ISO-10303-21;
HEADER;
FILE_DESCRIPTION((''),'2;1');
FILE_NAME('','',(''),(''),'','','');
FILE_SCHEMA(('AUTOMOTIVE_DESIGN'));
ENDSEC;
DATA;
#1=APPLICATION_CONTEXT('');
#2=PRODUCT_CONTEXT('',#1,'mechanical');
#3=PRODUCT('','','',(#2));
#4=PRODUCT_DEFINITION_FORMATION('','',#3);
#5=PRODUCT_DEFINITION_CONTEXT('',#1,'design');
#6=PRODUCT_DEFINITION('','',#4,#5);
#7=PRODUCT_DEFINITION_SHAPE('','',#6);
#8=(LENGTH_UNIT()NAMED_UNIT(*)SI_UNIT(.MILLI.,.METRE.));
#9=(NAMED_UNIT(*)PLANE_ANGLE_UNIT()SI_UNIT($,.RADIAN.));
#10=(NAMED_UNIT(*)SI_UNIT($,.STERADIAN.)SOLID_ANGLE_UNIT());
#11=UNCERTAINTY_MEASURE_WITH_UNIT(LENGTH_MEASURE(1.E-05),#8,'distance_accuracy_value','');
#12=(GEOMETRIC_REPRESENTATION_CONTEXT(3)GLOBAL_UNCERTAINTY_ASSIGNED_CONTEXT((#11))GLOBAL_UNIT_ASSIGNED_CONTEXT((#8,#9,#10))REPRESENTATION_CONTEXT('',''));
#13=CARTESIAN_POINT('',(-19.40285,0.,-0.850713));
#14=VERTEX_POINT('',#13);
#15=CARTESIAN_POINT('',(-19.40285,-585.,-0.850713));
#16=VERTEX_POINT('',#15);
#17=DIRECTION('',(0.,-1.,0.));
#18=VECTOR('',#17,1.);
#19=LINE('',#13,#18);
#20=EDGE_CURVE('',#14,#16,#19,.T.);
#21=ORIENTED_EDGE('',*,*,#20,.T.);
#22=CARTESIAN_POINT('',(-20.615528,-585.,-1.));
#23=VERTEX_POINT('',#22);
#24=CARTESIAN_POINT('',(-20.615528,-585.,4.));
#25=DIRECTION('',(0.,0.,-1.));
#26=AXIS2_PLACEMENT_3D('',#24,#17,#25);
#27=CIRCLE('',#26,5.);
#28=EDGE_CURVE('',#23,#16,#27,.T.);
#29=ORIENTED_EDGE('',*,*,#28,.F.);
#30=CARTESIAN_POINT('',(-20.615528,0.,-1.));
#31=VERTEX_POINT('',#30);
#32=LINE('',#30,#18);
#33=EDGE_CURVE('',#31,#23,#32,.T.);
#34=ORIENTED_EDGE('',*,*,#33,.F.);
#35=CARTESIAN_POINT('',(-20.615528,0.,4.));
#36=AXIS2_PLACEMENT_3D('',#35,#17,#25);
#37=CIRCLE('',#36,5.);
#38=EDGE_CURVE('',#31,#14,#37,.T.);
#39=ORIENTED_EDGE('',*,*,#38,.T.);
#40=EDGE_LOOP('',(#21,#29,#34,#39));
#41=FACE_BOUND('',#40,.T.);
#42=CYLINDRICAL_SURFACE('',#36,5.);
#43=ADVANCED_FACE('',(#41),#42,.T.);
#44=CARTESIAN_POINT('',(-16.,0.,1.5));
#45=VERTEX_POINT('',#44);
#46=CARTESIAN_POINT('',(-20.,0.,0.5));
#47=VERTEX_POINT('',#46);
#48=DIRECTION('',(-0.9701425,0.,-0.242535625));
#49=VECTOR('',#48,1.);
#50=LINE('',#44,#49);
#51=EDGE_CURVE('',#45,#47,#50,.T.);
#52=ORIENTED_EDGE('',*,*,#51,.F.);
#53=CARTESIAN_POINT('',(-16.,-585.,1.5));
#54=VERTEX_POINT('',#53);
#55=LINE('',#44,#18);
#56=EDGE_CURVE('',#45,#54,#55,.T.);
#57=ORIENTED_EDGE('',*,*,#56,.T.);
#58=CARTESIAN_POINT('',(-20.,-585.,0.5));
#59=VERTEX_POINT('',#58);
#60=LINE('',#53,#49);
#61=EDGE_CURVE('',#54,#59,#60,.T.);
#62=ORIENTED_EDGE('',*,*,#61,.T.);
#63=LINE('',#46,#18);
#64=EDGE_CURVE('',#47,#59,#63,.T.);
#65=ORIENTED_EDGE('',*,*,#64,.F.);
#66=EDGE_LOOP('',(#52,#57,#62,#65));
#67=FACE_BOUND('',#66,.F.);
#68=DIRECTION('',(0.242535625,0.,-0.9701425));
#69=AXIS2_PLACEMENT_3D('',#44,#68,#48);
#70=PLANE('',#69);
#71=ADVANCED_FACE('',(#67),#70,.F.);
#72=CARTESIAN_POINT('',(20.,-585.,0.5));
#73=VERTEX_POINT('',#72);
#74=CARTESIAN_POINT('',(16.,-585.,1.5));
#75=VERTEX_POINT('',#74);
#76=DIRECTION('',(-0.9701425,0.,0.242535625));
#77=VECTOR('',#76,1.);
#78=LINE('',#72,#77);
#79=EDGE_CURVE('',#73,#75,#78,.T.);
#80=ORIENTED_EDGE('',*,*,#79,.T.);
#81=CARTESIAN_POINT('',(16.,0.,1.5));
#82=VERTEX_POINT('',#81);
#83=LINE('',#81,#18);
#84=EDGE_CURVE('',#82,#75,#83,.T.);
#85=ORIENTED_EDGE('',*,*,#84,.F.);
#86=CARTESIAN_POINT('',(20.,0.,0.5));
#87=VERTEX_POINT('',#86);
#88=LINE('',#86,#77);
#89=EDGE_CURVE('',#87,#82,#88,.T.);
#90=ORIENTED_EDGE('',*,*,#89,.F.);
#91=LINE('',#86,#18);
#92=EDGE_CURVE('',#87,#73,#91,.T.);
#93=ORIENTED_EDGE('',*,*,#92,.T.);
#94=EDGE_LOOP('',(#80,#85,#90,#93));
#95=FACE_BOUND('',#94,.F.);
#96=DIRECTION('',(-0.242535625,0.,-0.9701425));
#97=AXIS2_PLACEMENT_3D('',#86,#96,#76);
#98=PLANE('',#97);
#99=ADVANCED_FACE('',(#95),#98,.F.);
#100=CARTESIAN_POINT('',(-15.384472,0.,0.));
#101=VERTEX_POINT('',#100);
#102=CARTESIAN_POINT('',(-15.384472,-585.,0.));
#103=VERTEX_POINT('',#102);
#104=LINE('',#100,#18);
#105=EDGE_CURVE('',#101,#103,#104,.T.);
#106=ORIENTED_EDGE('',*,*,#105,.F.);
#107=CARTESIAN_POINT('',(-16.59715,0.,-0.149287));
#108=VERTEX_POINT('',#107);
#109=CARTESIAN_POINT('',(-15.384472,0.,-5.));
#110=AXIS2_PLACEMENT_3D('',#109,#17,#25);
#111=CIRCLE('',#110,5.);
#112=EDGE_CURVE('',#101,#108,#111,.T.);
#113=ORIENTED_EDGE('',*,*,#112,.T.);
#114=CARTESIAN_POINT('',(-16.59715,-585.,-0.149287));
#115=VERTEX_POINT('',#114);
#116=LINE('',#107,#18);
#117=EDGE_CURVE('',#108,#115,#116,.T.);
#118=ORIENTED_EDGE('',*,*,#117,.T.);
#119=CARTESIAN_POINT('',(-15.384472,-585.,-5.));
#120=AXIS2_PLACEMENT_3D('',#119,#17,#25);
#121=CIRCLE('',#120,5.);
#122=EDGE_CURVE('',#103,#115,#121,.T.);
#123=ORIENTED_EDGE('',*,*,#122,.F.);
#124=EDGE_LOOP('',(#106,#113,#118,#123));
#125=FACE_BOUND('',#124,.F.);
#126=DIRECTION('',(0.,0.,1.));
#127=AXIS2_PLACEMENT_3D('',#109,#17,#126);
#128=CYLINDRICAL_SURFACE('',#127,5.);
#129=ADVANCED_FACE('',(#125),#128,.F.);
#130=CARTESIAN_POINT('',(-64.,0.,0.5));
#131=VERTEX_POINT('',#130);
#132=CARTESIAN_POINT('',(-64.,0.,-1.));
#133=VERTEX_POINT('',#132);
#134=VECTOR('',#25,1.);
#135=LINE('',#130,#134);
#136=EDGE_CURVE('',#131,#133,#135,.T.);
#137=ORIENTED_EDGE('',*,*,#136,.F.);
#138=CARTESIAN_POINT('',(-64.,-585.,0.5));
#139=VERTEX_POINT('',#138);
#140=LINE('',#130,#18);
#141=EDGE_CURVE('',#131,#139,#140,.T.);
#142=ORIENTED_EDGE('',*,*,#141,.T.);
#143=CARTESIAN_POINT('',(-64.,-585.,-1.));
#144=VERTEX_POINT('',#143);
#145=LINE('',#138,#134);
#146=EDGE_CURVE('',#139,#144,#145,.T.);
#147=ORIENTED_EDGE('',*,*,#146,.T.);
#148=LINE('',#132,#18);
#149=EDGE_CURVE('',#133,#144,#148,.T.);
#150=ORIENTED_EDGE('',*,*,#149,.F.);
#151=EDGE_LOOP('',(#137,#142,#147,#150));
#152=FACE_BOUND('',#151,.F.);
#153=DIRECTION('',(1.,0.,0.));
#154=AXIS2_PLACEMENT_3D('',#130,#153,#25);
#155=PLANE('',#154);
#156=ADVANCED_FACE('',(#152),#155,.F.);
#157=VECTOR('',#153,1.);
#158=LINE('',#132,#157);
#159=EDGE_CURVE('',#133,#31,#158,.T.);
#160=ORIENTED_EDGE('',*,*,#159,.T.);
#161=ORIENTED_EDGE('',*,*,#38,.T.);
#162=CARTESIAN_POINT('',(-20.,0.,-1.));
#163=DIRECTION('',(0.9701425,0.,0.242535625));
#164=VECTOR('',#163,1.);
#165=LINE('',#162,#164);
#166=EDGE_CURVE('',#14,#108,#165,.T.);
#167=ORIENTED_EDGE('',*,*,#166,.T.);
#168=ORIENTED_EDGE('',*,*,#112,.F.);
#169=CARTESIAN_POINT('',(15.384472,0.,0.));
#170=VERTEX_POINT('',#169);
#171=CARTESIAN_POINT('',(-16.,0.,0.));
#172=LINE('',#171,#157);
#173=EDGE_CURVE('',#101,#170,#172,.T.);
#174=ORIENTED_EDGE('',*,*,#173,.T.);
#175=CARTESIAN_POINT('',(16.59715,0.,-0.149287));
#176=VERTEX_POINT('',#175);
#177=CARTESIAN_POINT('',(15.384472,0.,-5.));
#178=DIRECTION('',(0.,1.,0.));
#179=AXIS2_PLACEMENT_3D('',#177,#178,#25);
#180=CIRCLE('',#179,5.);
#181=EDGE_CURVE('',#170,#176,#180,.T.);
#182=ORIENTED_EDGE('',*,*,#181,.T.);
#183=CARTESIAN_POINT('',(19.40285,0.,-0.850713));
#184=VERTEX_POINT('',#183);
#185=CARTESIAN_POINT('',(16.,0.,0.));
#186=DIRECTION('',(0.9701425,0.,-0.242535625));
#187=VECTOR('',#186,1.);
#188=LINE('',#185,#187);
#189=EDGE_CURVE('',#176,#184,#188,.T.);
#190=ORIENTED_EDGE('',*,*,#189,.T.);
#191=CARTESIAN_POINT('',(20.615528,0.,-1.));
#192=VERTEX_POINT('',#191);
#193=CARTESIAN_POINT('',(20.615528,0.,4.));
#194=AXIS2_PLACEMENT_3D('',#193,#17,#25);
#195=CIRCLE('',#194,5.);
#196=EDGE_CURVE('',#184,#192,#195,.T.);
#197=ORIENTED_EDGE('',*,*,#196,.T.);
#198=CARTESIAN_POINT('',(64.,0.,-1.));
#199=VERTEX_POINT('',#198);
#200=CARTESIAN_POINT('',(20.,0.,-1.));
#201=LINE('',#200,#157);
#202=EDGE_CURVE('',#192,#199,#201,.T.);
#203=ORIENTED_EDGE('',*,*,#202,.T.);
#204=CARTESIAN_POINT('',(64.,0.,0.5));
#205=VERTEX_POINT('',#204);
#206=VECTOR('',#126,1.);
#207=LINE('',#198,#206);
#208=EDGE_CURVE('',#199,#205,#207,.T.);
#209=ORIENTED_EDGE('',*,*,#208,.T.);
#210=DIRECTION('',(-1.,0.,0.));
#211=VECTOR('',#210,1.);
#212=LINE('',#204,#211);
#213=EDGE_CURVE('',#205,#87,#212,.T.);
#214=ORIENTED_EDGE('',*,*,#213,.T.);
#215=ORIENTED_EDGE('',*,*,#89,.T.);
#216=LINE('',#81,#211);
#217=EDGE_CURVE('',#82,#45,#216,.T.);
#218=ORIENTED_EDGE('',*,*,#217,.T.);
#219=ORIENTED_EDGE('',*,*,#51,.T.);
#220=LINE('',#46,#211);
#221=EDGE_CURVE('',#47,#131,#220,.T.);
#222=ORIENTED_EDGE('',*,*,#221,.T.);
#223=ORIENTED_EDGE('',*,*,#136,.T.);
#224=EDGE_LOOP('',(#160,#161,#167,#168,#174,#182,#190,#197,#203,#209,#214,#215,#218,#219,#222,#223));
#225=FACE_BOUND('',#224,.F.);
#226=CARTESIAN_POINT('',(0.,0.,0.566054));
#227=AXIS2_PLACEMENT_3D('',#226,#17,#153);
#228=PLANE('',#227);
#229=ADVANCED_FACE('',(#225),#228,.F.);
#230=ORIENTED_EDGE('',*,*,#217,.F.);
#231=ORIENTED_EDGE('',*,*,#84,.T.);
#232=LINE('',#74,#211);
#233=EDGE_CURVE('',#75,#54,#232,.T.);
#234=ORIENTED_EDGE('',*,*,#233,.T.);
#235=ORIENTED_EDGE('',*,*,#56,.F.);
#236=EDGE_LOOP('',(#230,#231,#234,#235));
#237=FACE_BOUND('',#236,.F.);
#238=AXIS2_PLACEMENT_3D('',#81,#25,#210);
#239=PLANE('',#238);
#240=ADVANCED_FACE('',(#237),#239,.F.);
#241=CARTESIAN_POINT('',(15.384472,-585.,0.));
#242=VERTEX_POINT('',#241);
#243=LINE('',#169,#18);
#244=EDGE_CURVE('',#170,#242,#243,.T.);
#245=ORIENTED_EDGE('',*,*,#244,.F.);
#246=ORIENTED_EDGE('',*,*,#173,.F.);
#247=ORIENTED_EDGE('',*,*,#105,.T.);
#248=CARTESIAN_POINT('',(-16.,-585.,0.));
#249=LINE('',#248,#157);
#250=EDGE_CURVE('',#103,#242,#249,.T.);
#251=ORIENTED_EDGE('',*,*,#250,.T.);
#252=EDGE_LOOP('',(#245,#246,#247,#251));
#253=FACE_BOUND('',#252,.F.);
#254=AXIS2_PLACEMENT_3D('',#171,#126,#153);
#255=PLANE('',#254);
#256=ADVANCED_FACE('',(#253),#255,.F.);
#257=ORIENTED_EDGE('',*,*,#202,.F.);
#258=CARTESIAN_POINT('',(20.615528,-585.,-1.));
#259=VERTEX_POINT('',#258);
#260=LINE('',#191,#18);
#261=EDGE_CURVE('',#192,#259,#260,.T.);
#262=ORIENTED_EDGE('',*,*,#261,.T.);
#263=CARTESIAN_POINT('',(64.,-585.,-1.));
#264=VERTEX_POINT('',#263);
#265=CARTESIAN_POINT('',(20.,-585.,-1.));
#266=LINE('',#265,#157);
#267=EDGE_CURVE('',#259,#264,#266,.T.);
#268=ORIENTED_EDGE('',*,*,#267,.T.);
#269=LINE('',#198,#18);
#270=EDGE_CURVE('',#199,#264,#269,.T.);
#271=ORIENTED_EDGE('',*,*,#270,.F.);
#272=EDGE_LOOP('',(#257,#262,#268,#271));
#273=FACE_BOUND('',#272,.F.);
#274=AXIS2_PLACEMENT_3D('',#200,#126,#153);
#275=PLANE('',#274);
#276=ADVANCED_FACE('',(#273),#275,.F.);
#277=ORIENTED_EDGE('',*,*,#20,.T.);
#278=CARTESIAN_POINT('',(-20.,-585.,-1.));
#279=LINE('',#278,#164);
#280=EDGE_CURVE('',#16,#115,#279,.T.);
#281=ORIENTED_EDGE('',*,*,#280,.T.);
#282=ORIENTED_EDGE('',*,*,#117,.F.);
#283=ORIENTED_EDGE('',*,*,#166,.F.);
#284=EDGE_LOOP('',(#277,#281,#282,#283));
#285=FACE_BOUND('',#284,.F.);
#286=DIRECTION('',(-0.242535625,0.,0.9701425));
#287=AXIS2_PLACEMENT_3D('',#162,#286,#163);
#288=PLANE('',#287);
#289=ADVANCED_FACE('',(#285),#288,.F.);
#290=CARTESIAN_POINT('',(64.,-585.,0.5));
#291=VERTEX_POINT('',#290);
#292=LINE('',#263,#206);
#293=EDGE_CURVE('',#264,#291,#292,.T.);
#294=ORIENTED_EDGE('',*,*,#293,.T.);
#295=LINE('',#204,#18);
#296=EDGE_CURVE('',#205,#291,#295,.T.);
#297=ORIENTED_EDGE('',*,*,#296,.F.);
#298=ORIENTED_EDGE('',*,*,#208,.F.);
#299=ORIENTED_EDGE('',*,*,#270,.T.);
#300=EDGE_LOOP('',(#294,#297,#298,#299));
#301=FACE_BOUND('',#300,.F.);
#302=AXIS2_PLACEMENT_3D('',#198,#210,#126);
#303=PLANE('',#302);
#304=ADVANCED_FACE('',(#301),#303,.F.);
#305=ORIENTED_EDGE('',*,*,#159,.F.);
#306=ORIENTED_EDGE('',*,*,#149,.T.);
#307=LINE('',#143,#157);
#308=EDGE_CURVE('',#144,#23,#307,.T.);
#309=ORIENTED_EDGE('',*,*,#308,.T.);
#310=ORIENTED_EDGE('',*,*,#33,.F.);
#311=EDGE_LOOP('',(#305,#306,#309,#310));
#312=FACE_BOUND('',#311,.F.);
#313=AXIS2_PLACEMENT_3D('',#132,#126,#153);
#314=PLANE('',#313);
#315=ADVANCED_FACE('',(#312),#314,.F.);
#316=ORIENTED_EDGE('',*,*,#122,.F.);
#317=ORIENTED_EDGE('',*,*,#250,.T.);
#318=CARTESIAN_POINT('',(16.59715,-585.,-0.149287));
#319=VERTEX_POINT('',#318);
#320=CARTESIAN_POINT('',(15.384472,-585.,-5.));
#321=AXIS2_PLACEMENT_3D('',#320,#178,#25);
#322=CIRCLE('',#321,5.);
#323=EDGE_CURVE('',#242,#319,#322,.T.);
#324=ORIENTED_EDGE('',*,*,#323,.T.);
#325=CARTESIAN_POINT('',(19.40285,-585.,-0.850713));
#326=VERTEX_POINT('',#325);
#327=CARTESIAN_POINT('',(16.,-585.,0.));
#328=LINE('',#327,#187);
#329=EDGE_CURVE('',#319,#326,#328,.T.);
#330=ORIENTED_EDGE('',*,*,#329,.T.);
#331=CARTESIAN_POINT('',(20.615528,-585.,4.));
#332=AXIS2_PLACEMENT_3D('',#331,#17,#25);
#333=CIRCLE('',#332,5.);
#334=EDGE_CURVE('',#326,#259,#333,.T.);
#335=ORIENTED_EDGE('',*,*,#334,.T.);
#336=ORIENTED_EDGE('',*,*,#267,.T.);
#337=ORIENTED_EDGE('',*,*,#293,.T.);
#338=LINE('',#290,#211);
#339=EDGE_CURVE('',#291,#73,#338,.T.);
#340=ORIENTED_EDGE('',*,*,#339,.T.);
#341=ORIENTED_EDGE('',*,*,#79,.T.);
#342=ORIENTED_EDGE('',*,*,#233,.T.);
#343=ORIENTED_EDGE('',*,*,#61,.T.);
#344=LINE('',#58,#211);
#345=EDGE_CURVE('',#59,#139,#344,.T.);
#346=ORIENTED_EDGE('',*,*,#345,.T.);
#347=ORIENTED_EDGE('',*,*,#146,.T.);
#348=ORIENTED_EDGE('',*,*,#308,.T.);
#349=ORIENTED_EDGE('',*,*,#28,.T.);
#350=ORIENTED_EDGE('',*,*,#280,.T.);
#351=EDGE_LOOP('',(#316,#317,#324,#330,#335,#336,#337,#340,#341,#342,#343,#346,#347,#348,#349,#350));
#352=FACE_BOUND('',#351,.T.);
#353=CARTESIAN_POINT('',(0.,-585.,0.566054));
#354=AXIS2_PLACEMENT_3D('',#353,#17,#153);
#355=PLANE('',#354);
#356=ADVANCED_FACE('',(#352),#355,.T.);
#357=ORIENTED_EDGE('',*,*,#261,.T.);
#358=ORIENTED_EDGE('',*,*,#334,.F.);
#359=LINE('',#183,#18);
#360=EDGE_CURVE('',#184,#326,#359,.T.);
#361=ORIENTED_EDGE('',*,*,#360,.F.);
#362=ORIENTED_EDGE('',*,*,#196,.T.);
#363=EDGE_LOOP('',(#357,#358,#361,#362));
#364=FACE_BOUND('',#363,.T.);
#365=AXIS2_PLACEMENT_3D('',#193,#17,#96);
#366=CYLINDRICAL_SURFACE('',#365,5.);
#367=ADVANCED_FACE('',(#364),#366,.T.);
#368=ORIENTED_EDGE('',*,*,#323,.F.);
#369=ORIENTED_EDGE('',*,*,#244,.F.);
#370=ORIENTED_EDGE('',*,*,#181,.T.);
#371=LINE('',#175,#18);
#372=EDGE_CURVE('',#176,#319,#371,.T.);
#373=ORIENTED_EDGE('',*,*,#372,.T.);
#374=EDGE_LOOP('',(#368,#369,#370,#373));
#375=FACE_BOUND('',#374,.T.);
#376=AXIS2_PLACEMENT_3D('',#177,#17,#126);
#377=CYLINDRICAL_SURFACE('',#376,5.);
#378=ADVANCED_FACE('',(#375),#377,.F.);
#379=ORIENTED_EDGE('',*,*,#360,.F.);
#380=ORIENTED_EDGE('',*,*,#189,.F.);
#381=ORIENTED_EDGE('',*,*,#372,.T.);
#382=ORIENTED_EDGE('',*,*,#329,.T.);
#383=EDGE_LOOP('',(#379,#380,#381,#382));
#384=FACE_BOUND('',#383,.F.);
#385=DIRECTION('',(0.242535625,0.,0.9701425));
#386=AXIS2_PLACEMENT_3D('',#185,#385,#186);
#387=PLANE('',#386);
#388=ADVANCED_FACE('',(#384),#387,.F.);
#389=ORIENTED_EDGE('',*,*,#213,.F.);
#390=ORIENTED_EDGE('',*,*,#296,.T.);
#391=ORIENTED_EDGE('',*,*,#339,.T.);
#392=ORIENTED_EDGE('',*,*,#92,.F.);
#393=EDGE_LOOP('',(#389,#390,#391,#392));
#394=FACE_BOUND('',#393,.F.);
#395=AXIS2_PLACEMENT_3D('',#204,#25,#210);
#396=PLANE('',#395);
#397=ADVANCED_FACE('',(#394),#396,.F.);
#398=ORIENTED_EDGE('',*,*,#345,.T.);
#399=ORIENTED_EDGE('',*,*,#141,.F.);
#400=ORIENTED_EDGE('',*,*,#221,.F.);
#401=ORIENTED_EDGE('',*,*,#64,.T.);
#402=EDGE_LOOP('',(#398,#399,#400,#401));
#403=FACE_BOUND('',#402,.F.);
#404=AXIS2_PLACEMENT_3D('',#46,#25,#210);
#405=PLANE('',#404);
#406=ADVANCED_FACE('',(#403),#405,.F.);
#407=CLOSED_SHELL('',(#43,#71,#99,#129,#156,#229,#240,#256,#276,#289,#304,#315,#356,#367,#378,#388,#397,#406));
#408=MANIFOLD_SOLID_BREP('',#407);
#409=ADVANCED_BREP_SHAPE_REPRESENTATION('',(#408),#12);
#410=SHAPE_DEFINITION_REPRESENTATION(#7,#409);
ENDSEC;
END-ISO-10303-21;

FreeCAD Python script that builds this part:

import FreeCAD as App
import Part
import Sketcher

V = App.Vector
Q = App.Units.Quantity


def edges_at(feature, points):
    """Names of the edges that pass closest to the given points."""
    edges = feature.Shape.Edges
    near = lambda p: min(range(len(edges)), key=lambda i: edges[i].distToShape(Part.Vertex(*p))[0])
    return sorted({f"Edge{near(p) + 1}" for p in points})

doc = App.newDocument("Part")
body = doc.addObject("PartDesign::Body", "Body")

sketch1 = body.newObject("Sketcher::SketchObject", "Sketch")
sketch1.AttachmentSupport = (doc.getObject("XZ_Plane"), [""])
sketch1.MapMode = "FlatFace"
sketch1.addGeometry([
    Part.LineSegment(V(-16, 0, 0), V(16, 0, 0)),
    Part.LineSegment(V(16, 0, 0), V(20, -1, 0)),
    Part.LineSegment(V(20, -1, 0), V(64, -1, 0)),
    Part.LineSegment(V(64, -1, 0), V(64, 0.5, 0)),
    Part.LineSegment(V(64, 0.5, 0), V(20, 0.5, 0)),
    Part.LineSegment(V(20, 0.5, 0), V(16, 1.5, 0)),
    Part.LineSegment(V(16, 1.5, 0), V(-16, 1.5, 0)),
    Part.LineSegment(V(-16, 1.5, 0), V(-20, 0.5, 0)),
    Part.LineSegment(V(-20, 0.5, 0), V(-64, 0.5, 0)),
    Part.LineSegment(V(-64, 0.5, 0), V(-64, -1, 0)),
    Part.LineSegment(V(-64, -1, 0), V(-20, -1, 0)),
    Part.LineSegment(V(-20, -1, 0), V(-16, 0, 0)),
], False)
sketch1.addConstraint([
    Sketcher.Constraint("Coincident", 0, 2, 1, 1),
    Sketcher.Constraint("Coincident", 1, 2, 2, 1),
    Sketcher.Constraint("Coincident", 2, 2, 3, 1),
    Sketcher.Constraint("Coincident", 3, 2, 4, 1),
    Sketcher.Constraint("Coincident", 4, 2, 5, 1),
    Sketcher.Constraint("Coincident", 5, 2, 6, 1),
    Sketcher.Constraint("Coincident", 6, 2, 7, 1),
    Sketcher.Constraint("Coincident", 7, 2, 8, 1),
    Sketcher.Constraint("Coincident", 8, 2, 9, 1),
    Sketcher.Constraint("Coincident", 9, 2, 10, 1),
    Sketcher.Constraint("Coincident", 10, 2, 11, 1),
    Sketcher.Constraint("Coincident", 11, 2, 0, 1),
    Sketcher.Constraint("Horizontal", 0),
    Sketcher.Constraint("Horizontal", 2),
    Sketcher.Constraint("Vertical", 3),
    Sketcher.Constraint("Horizontal", 4),
    Sketcher.Constraint("Horizontal", 6),
    Sketcher.Constraint("Horizontal", 8),
    Sketcher.Constraint("Vertical", 9),
    Sketcher.Constraint("Horizontal", 10),
    Sketcher.Constraint("Symmetric", 0, 2, 11, 2, -1, 1),
    Sketcher.Constraint("Symmetric", 4, 2, 7, 2, -2),
    Sketcher.Constraint("Symmetric", 2, 2, 9, 2, -2),
    Sketcher.Constraint("Parallel", 1, 5),
    Sketcher.Constraint("Parallel", 7, 11),
    Sketcher.Constraint("Vertical", 1, 2, 4, 2),
    Sketcher.Constraint("Vertical", 0, 2, 5, 2),
    Sketcher.Constraint("Vertical", 7, 2, 10, 2),
    Sketcher.Constraint("DistanceX", 0, 1, 0, 2, Q("32 mm")),
    Sketcher.Constraint("DistanceX", 2, 1, 2, 2, Q("44 mm")),
    Sketcher.Constraint("DistanceY", 3, 1, 3, 2, Q("1.5 mm")),
    Sketcher.Constraint("DistanceX", -1, 1, 1, 2, Q("20 mm")),
    Sketcher.Constraint("DistanceY", 1, 2, -1, 1, Q("1 mm")),
])
pad1 = body.newObject("PartDesign::Pad", "Pad")
pad1.Profile = sketch1
pad1.Length = 585
doc.recompute()

fillet = body.newObject("PartDesign::Fillet", "Fillet")
fillet.Base = (pad1, edges_at(pad1, [
    (20, -292.5, -1),
    (16, -292.5, 0),
    (-16, -292.5, 0),
    (-20, -292.5, -1),
]))
fillet.Radius = 5

doc.recompute()
